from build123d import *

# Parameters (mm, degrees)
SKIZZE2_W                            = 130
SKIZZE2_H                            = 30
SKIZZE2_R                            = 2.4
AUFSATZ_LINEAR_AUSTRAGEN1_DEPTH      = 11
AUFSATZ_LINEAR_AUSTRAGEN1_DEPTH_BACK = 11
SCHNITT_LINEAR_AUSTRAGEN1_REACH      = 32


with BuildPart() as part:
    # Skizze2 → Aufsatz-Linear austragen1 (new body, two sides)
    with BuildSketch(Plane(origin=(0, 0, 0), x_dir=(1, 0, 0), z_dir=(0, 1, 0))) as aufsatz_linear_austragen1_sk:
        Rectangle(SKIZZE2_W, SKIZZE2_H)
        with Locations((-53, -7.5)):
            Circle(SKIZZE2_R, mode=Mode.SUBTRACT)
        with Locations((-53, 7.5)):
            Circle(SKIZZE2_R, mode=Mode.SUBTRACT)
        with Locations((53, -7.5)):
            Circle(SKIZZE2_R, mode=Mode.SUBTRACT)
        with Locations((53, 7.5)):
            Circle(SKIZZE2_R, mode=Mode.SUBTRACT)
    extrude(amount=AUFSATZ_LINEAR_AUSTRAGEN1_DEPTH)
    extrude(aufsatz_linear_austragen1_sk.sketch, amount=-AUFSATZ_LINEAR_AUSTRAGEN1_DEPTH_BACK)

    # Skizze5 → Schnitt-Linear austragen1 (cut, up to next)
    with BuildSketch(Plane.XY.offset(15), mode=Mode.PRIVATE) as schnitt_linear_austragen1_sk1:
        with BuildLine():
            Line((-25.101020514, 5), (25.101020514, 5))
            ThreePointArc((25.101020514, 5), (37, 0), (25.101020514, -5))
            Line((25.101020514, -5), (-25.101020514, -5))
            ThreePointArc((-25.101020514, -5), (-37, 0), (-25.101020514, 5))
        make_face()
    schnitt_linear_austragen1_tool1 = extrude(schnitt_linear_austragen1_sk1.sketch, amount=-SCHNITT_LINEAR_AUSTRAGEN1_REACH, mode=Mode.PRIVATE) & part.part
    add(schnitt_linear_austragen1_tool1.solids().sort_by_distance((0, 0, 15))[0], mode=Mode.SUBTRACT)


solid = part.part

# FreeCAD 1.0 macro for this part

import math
import FreeCAD as App
import Part
import Sketcher


def add_polygon(sketch, points):
    """Adds a closed chain of lines whose ends are joined by coincident constraints."""
    first, n = sketch.GeometryCount, len(points)
    for a, b in zip(points, points[1:] + points[:1]):
        sketch.addGeometry(Part.LineSegment(App.Vector(*a, 0), App.Vector(*b, 0)), False)
    for i in range(n):
        sketch.addConstraint(Sketcher.Constraint("Coincident", first + i, 2, first + (i + 1) % n, 1))

doc = App.newDocument("Part")
body = doc.addObject("PartDesign::Body", "Body")

sketch1 = doc.addObject("Sketcher::SketchObject", "Sketch")
body.addObject(sketch1)
sketch1.AttachmentSupport = (doc.XZ_Plane, [""])
sketch1.MapMode = "FlatFace"
add_polygon(sketch1, [(-65, -15), (-65, 15), (65, 15), (65, -15)])
sketch1.addGeometry(Part.Circle(App.Vector(-53, 7.5, 0), App.Vector(0, 0, 1), 2.4), False)
sketch1.addGeometry(Part.Circle(App.Vector(53, 7.5, 0), App.Vector(0, 0, 1), 2.4), False)
sketch1.addGeometry(Part.Circle(App.Vector(-53, -7.5, 0), App.Vector(0, 0, 1), 2.4), False)
sketch1.addGeometry(Part.Circle(App.Vector(53, -7.5, 0), App.Vector(0, 0, 1), 2.4), False)
sketch1.addConstraint([
    Sketcher.Constraint("Vertical", 0),
    Sketcher.Constraint("Horizontal", 1),
    Sketcher.Constraint("Vertical", 2),
    Sketcher.Constraint("Horizontal", 3),
    Sketcher.Constraint("Equal", 4, 5),
    Sketcher.Constraint("Equal", 5, 6),
    Sketcher.Constraint("Equal", 6, 7),
    Sketcher.Constraint("Symmetric", 5, 3, 6, 3, -1, 1),
    Sketcher.Constraint("Symmetric", 4, 3, 7, 3, -1, 1),
    Sketcher.Constraint("Symmetric", 0, 2, 2, 2, -1, 1),
    Sketcher.Constraint("Symmetric", 4, 3, 5, 3, -2),
    Sketcher.Constraint("Diameter", 4, 4.8),
    Sketcher.Constraint("DistanceX", 1, 1, 1, 2, 130.0),
    Sketcher.Constraint("DistanceY", 0, 1, 0, 2, 30.0),
    Sketcher.Constraint("DistanceX", 4, 3, -1, 1, 53.0),
    Sketcher.Constraint("DistanceY", 6, 3, 4, 3, 15.0),
])
pad1 = doc.addObject("PartDesign::Pad", "Pad")
body.addObject(pad1)
pad1.Profile = sketch1
pad1.Type = "TwoLengths"
pad1.Length = 11
pad1.Length2 = 11
pad1.Reversed = True

sketch2 = doc.addObject("Sketcher::SketchObject", "Sketch001")
body.addObject(sketch2)
sketch2.AttachmentSupport = (doc.XY_Plane, [""])
sketch2.MapMode = "FlatFace"
sketch2.AttachmentOffset = App.Placement(App.Vector(0, 0, 15), App.Rotation())
sketch2.addGeometry([
    Part.LineSegment(App.Vector(25, 5, 0), App.Vector(-25, 5, 0)),
    Part.ArcOfCircle(Part.Circle(App.Vector(-30, 0, 0), App.Vector(0, 0, 1), 7), math.radians(46), math.radians(314)),
    Part.LineSegment(App.Vector(-25, -5, 0), App.Vector(25, -5, 0)),
    Part.ArcOfCircle(Part.Circle(App.Vector(30, 0, 0), App.Vector(0, 0, 1), 7), math.radians(-134), math.radians(134)),
], False)
sketch2.addConstraint([
    Sketcher.Constraint("Coincident", 0, 2, 1, 1),
    Sketcher.Constraint("Coincident", 1, 2, 2, 1),
    Sketcher.Constraint("Coincident", 2, 2, 3, 1),
    Sketcher.Constraint("Coincident", 3, 2, 0, 1),
    Sketcher.Constraint("Horizontal", 0),
    Sketcher.Constraint("Horizontal", 2),
    Sketcher.Constraint("Equal", 1, 3),
    Sketcher.Constraint("Symmetric", 1, 3, 3, 3, -1, 1),
    Sketcher.Constraint("Symmetric", 0, 2, 1, 2, -1),
    Sketcher.Constraint("Radius", 1, 7.0),
    Sketcher.Constraint("DistanceX", 1, 3, -1, 1, 30.0),
    Sketcher.Constraint("DistanceY", -1, 1, 0, 2, 5.0),
])
pocket1 = doc.addObject("PartDesign::Pocket", "Pocket")
body.addObject(pocket1)
pocket1.Profile = sketch2
pocket1.Type = "UpToFirst"

doc.recompute()
